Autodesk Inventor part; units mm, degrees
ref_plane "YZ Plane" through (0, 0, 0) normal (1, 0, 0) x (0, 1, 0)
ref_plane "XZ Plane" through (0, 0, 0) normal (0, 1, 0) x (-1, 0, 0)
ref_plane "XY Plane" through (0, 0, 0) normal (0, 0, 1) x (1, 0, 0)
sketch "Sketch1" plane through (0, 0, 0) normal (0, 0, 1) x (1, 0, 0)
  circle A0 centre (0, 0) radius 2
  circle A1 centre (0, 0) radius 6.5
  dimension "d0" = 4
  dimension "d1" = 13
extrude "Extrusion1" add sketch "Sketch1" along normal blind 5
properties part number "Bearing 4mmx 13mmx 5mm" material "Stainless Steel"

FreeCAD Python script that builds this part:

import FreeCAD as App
import Part
import Sketcher
from FreeCAD import Vector

doc = App.newDocument("Part")
body = doc.addObject("PartDesign::Body", "Body")

# Sketch on XY plane
sketch1 = doc.addObject("Sketcher::SketchObject", "Sketch")
body.addObject(sketch1)
sketch1.AttachmentSupport = (doc.XY_Plane, [""])
sketch1.MapMode = "FlatFace"
sketch1.addGeometry([
    Part.Circle(Vector(0, 0, 0), Vector(0, 0, 1), 6.5),
    Part.Circle(Vector(0, 0, 0), Vector(0, 0, 1), 2),
], False)
sketch1.addConstraint([
    Sketcher.Constraint("Coincident", 0, 3, -1, 1),
    Sketcher.Constraint("Coincident", 1, 3, -1, 1),
    Sketcher.Constraint("Diameter", 0, 13.0),
    Sketcher.Constraint("Diameter", 1, 4.0),
])
pad1 = doc.addObject("PartDesign::Pad", "Pad")
body.addObject(pad1)
pad1.Profile = sketch1
pad1.Length = 5

doc.recompute()
